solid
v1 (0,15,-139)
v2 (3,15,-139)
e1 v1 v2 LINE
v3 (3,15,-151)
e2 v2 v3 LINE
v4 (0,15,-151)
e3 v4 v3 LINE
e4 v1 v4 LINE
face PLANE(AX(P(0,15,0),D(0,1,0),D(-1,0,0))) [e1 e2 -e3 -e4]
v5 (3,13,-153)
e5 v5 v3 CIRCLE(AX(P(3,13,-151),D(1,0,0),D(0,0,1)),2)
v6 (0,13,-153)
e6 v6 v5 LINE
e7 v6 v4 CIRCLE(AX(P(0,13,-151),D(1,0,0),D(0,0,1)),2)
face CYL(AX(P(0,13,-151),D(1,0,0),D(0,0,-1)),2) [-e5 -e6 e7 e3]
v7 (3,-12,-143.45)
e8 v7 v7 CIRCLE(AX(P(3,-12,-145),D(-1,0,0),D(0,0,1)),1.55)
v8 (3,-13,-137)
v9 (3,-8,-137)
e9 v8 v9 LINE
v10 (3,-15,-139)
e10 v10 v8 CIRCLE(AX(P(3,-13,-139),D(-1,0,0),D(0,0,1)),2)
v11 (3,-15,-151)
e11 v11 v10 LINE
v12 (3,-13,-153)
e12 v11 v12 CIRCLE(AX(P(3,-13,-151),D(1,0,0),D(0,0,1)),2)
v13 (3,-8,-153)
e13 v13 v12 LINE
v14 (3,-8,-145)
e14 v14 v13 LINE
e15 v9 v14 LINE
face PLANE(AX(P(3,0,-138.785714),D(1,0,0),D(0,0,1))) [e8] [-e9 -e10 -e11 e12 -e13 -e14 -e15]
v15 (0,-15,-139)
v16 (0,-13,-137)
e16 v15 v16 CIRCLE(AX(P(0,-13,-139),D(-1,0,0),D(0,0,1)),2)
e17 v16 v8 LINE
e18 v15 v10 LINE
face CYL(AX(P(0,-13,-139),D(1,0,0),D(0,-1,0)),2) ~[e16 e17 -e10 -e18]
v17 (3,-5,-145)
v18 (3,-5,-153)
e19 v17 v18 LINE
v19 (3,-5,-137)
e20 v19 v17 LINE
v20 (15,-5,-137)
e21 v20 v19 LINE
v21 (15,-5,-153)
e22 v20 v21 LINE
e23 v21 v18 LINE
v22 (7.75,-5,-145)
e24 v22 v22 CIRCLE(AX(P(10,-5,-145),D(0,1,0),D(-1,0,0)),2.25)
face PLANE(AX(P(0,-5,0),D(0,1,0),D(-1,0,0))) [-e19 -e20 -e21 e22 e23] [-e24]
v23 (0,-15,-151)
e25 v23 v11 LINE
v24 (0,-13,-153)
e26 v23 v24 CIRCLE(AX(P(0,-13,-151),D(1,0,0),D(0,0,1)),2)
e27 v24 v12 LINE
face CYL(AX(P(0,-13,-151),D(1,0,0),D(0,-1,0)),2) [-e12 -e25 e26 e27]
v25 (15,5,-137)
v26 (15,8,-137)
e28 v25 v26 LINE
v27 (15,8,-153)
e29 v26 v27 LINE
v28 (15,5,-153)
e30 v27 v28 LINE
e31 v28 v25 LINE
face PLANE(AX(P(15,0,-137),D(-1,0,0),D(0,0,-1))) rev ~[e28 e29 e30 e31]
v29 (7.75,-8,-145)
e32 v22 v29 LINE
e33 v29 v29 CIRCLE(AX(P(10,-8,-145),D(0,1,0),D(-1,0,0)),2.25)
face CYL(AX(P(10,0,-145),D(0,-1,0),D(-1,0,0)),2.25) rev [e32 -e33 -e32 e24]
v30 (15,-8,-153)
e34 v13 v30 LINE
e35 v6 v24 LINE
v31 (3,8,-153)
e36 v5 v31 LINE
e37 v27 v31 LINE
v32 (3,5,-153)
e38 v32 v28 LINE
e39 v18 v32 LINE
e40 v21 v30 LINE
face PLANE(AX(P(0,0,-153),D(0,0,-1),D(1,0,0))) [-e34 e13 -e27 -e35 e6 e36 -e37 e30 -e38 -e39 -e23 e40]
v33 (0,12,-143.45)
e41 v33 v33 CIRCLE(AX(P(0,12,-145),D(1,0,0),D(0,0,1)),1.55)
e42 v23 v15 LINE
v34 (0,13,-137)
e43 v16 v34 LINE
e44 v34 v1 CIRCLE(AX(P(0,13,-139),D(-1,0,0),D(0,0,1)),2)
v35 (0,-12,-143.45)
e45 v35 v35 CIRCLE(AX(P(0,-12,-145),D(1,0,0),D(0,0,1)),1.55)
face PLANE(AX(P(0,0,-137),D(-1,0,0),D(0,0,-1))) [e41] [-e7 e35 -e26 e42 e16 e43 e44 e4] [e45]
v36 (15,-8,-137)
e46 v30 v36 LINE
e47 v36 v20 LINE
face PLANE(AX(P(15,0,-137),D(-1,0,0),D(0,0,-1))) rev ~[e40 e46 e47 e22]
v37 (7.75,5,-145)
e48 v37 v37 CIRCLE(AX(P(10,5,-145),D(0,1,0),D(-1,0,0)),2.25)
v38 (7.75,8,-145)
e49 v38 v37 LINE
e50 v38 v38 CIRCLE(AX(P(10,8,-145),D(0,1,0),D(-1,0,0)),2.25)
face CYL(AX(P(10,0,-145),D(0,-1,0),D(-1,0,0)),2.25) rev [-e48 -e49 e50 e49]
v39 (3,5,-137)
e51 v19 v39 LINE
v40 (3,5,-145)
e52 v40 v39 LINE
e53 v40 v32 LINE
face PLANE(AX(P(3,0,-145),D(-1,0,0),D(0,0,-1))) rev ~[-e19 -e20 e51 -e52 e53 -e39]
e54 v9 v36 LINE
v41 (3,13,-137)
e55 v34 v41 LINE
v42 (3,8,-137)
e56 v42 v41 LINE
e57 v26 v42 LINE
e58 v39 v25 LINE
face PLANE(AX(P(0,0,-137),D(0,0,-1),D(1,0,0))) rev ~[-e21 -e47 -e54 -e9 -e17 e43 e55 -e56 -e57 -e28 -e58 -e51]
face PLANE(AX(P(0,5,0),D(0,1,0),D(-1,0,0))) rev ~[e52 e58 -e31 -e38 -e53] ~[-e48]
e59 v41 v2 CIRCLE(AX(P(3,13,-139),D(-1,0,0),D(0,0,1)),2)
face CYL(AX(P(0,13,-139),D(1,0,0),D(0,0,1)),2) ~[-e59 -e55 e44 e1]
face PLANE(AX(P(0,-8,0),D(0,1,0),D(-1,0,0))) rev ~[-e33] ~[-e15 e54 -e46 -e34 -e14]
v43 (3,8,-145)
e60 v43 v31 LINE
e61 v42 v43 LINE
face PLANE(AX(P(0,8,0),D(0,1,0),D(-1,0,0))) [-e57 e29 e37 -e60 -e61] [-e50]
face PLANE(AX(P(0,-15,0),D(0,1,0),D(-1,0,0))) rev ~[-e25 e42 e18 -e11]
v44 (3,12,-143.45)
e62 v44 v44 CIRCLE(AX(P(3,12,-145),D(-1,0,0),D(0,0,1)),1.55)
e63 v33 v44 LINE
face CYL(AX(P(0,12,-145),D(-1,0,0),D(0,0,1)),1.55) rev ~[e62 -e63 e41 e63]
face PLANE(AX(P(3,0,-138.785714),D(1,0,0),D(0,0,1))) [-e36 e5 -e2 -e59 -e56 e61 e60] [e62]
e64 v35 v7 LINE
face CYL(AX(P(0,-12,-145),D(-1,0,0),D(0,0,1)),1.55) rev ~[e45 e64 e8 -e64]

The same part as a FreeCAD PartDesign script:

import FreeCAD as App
import Part
import Sketcher
Q = App.Units.Quantity


def edges_at(feature, points):
    """Names of the edges that pass closest to the given points."""
    edges = feature.Shape.Edges
    near = lambda p: min(range(len(edges)), key=lambda i: edges[i].distToShape(Part.Vertex(*p))[0])
    return sorted({f"Edge{near(p) + 1}" for p in points})

doc = App.newDocument("Part")
params = doc.addObject("Spreadsheet::Sheet", "Params")
for row, (alias, value) in enumerate([
    ("sketch1_diameter", "4.5 mm"),
    ("pad1_length", "16 mm"),
    ("sketch2_diameter", "4.5 mm"),
    ("sketch2_width", "12 mm"),
    ("sketch2_height", "8 mm"),
    ("pocket1_length", "10 mm"),
    ("sketch3_width", "3 mm"),
    ("sketch3_height", "16 mm"),
    ("pad2_length", "30 mm"),
    ("sketch4_diameter", "3.1 mm"),
    ("pocket2_length", "30 mm"),
    ("fillet_radius", "2 mm"),
], start=1):
    params.set(f"A{row}", alias)
    params.set(f"B{row}", "=" + value)
    params.setAlias(f"B{row}", alias)

body = doc.addObject("PartDesign::Body", "Body")

sketch1 = doc.addObject("Sketcher::SketchObject", "Sketch")
body.addObject(sketch1)
sketch1.AttachmentSupport = (doc.XZ_Plane, [""])
sketch1.MapMode = "FlatFace"
sketch1.addGeometry(Part.LineSegment(App.Vector(0, -137, 0), App.Vector(15, -137, 0)), False)
sketch1.addGeometry(Part.LineSegment(App.Vector(15, -137, 0), App.Vector(15, -153, 0)), False)
sketch1.addGeometry(Part.LineSegment(App.Vector(15, -153, 0), App.Vector(0, -153, 0)), False)
sketch1.addGeometry(Part.LineSegment(App.Vector(0, -153, 0), App.Vector(0, -137, 0)), False)
sketch1.addGeometry(Part.Circle(App.Vector(10, -145, 0), App.Vector(0, 0, 1), 2.25), False)
sketch1.addConstraint(Sketcher.Constraint("Coincident", 0, 2, 1, 1))
sketch1.addConstraint(Sketcher.Constraint("Coincident", 1, 2, 2, 1))
sketch1.addConstraint(Sketcher.Constraint("Coincident", 2, 2, 3, 1))
sketch1.addConstraint(Sketcher.Constraint("Coincident", 3, 2, 0, 1))
sketch1.addConstraint(Sketcher.Constraint("Horizontal", 0))
sketch1.addConstraint(Sketcher.Constraint("Vertical", 1))
sketch1.addConstraint(Sketcher.Constraint("Horizontal", 2))
sketch1.addConstraint(Sketcher.Constraint("Vertical", 3))
sketch1.addConstraint(Sketcher.Constraint("PointOnObject", 2, 2, -2))
sketch1.addConstraint(Sketcher.Constraint("Diameter", 4, Q("4.5 mm")))
sketch1.addConstraint(Sketcher.Constraint("DistanceX", -1, 1, 4, 3, Q("10 mm")))
sketch1.addConstraint(Sketcher.Constraint("DistanceX", 4, 3, 0, 2, Q("5 mm")))
sketch1.addConstraint(Sketcher.Constraint("DistanceY", 4, 3, 0, 2, Q("8 mm")))
sketch1.addConstraint(Sketcher.Constraint("DistanceY", 1, 2, 4, 3, Q("8 mm")))
sketch1.addConstraint(Sketcher.Constraint("DistanceY", 4, 3, -1, 1, Q("145 mm")))
sketch1.setExpression("Constraints[9]", "Params.sketch1_diameter")
pad1 = doc.addObject("PartDesign::Pad", "Pad")
body.addObject(pad1)
pad1.Profile = sketch1
pad1.setExpression("Length", "Params.pad1_length")
pad1.Midplane = True

sketch2 = doc.addObject("Sketcher::SketchObject", "Sketch001")
body.addObject(sketch2)
sketch2.AttachmentSupport = (doc.XZ_Plane, [""])
sketch2.MapMode = "FlatFace"
sketch2.addGeometry(Part.LineSegment(App.Vector(15, -153, 0), App.Vector(3, -153, 0)), False)
sketch2.addGeometry(Part.LineSegment(App.Vector(3, -153, 0), App.Vector(3, -145, 0)), False)
sketch2.addGeometry(Part.LineSegment(App.Vector(3, -145, 0), App.Vector(3, -137, 0)), False)
sketch2.addGeometry(Part.LineSegment(App.Vector(3, -137, 0), App.Vector(15, -137, 0)), False)
sketch2.addGeometry(Part.LineSegment(App.Vector(15, -137, 0), App.Vector(15, -153, 0)), False)
sketch2.addGeometry(Part.Circle(App.Vector(10, -145, 0), App.Vector(0, 0, 1), 2.25), False)
sketch2.addConstraint(Sketcher.Constraint("Coincident", 0, 2, 1, 1))
sketch2.addConstraint(Sketcher.Constraint("Coincident", 1, 2, 2, 1))
sketch2.addConstraint(Sketcher.Constraint("Coincident", 2, 2, 3, 1))
sketch2.addConstraint(Sketcher.Constraint("Coincident", 3, 2, 4, 1))
sketch2.addConstraint(Sketcher.Constraint("Coincident", 4, 2, 0, 1))
sketch2.addConstraint(Sketcher.Constraint("Horizontal", 0))
sketch2.addConstraint(Sketcher.Constraint("Vertical", 1))
sketch2.addConstraint(Sketcher.Constraint("Vertical", 2))
sketch2.addConstraint(Sketcher.Constraint("Horizontal", 3))
sketch2.addConstraint(Sketcher.Constraint("Vertical", 4))
sketch2.addConstraint(Sketcher.Constraint("Horizontal", 5, 3, 1, 2))
sketch2.addConstraint(Sketcher.Constraint("Equal", 1, 2))
sketch2.addConstraint(Sketcher.Constraint("Diameter", 5, Q("4.5 mm")))
sketch2.addConstraint(Sketcher.Constraint("DistanceX", 0, 2, 0, 1, Q("12 mm")))
sketch2.addConstraint(Sketcher.Constraint("DistanceY", 1, 1, 1, 2, Q("8 mm")))
sketch2.addConstraint(Sketcher.Constraint("DistanceX", -1, 1, 5, 3, Q("10 mm")))
sketch2.addConstraint(Sketcher.Constraint("DistanceX", -1, 1, 0, 2, Q("3 mm")))
sketch2.addConstraint(Sketcher.Constraint("DistanceY", 5, 3, -1, 1, Q("145 mm")))
sketch2.setExpression("Constraints[12]", "Params.sketch2_diameter")
sketch2.setExpression("Constraints[13]", "Params.sketch2_width")
sketch2.setExpression("Constraints[14]", "Params.sketch2_height")
pocket1 = doc.addObject("PartDesign::Pocket", "Pocket")
body.addObject(pocket1)
pocket1.Profile = sketch2
pocket1.setExpression("Length", "Params.pocket1_length")
pocket1.Midplane = True

sketch3 = doc.addObject("Sketcher::SketchObject", "Sketch002")
body.addObject(sketch3)
sketch3.AttachmentSupport = (doc.XZ_Plane, [""])
sketch3.MapMode = "FlatFace"
sketch3.addGeometry(Part.LineSegment(App.Vector(0, -137, 0), App.Vector(3, -137, 0)), False)
sketch3.addGeometry(Part.LineSegment(App.Vector(3, -137, 0), App.Vector(3, -153, 0)), False)
sketch3.addGeometry(Part.LineSegment(App.Vector(3, -153, 0), App.Vector(0, -153, 0)), False)
sketch3.addGeometry(Part.LineSegment(App.Vector(0, -153, 0), App.Vector(0, -137, 0)), False)
sketch3.addConstraint(Sketcher.Constraint("Coincident", 0, 2, 1, 1))
sketch3.addConstraint(Sketcher.Constraint("Coincident", 1, 2, 2, 1))
sketch3.addConstraint(Sketcher.Constraint("Coincident", 2, 2, 3, 1))
sketch3.addConstraint(Sketcher.Constraint("Coincident", 3, 2, 0, 1))
sketch3.addConstraint(Sketcher.Constraint("Horizontal", 0))
sketch3.addConstraint(Sketcher.Constraint("Vertical", 1))
sketch3.addConstraint(Sketcher.Constraint("Horizontal", 2))
sketch3.addConstraint(Sketcher.Constraint("Vertical", 3))
sketch3.addConstraint(Sketcher.Constraint("PointOnObject", 2, 2, -2))
sketch3.addConstraint(Sketcher.Constraint("DistanceX", 0, 1, 0, 2, Q("3 mm")))
sketch3.addConstraint(Sketcher.Constraint("DistanceY", 1, 2, 1, 1, Q("16 mm")))
sketch3.addConstraint(Sketcher.Constraint("DistanceY", 0, 2, -1, 1, Q("137 mm")))
sketch3.setExpression("Constraints[9]", "Params.sketch3_width")
sketch3.setExpression("Constraints[10]", "Params.sketch3_height")
pad2 = doc.addObject("PartDesign::Pad", "Pad001")
body.addObject(pad2)
pad2.Profile = sketch3
pad2.setExpression("Length", "Params.pad2_length")
pad2.Midplane = True

sketch4 = doc.addObject("Sketcher::SketchObject", "Sketch003")
body.addObject(sketch4)
sketch4.AttachmentSupport = (doc.YZ_Plane, [""])
sketch4.MapMode = "FlatFace"
sketch4.addGeometry(Part.Circle(App.Vector(12, -145, 0), App.Vector(0, 0, 1), 1.55), False)
sketch4.addGeometry(Part.Circle(App.Vector(-12, -145, 0), App.Vector(0, 0, 1), 1.55), False)
sketch4.addConstraint(Sketcher.Constraint("Equal", 0, 1))
sketch4.addConstraint(Sketcher.Constraint("Symmetric", 0, 3, 1, 3, -2))
sketch4.addConstraint(Sketcher.Constraint("Diameter", 0, Q("3.1 mm")))
sketch4.addConstraint(Sketcher.Constraint("DistanceX", -1, 1, 0, 3, Q("12 mm")))
sketch4.addConstraint(Sketcher.Constraint("DistanceY", 0, 3, -1, 1, Q("145 mm")))
sketch4.setExpression("Constraints[2]", "Params.sketch4_diameter")
pocket2 = doc.addObject("PartDesign::Pocket", "Pocket001")
body.addObject(pocket2)
pocket2.Profile = sketch4
pocket2.setExpression("Length", "Params.pocket2_length")
pocket2.Reversed = True
doc.recompute()

fillet = doc.addObject("PartDesign::Fillet", "Fillet")
body.addObject(fillet)
fillet.Base = (pocket2, edges_at(pocket2, [
    (1.5, 15, -153),
    (1.5, -15, -153),
    (1.5, -15, -137),
    (1.5, 15, -137),
]))
fillet.setExpression("Radius", "Params.fillet_radius")

doc.recompute()
